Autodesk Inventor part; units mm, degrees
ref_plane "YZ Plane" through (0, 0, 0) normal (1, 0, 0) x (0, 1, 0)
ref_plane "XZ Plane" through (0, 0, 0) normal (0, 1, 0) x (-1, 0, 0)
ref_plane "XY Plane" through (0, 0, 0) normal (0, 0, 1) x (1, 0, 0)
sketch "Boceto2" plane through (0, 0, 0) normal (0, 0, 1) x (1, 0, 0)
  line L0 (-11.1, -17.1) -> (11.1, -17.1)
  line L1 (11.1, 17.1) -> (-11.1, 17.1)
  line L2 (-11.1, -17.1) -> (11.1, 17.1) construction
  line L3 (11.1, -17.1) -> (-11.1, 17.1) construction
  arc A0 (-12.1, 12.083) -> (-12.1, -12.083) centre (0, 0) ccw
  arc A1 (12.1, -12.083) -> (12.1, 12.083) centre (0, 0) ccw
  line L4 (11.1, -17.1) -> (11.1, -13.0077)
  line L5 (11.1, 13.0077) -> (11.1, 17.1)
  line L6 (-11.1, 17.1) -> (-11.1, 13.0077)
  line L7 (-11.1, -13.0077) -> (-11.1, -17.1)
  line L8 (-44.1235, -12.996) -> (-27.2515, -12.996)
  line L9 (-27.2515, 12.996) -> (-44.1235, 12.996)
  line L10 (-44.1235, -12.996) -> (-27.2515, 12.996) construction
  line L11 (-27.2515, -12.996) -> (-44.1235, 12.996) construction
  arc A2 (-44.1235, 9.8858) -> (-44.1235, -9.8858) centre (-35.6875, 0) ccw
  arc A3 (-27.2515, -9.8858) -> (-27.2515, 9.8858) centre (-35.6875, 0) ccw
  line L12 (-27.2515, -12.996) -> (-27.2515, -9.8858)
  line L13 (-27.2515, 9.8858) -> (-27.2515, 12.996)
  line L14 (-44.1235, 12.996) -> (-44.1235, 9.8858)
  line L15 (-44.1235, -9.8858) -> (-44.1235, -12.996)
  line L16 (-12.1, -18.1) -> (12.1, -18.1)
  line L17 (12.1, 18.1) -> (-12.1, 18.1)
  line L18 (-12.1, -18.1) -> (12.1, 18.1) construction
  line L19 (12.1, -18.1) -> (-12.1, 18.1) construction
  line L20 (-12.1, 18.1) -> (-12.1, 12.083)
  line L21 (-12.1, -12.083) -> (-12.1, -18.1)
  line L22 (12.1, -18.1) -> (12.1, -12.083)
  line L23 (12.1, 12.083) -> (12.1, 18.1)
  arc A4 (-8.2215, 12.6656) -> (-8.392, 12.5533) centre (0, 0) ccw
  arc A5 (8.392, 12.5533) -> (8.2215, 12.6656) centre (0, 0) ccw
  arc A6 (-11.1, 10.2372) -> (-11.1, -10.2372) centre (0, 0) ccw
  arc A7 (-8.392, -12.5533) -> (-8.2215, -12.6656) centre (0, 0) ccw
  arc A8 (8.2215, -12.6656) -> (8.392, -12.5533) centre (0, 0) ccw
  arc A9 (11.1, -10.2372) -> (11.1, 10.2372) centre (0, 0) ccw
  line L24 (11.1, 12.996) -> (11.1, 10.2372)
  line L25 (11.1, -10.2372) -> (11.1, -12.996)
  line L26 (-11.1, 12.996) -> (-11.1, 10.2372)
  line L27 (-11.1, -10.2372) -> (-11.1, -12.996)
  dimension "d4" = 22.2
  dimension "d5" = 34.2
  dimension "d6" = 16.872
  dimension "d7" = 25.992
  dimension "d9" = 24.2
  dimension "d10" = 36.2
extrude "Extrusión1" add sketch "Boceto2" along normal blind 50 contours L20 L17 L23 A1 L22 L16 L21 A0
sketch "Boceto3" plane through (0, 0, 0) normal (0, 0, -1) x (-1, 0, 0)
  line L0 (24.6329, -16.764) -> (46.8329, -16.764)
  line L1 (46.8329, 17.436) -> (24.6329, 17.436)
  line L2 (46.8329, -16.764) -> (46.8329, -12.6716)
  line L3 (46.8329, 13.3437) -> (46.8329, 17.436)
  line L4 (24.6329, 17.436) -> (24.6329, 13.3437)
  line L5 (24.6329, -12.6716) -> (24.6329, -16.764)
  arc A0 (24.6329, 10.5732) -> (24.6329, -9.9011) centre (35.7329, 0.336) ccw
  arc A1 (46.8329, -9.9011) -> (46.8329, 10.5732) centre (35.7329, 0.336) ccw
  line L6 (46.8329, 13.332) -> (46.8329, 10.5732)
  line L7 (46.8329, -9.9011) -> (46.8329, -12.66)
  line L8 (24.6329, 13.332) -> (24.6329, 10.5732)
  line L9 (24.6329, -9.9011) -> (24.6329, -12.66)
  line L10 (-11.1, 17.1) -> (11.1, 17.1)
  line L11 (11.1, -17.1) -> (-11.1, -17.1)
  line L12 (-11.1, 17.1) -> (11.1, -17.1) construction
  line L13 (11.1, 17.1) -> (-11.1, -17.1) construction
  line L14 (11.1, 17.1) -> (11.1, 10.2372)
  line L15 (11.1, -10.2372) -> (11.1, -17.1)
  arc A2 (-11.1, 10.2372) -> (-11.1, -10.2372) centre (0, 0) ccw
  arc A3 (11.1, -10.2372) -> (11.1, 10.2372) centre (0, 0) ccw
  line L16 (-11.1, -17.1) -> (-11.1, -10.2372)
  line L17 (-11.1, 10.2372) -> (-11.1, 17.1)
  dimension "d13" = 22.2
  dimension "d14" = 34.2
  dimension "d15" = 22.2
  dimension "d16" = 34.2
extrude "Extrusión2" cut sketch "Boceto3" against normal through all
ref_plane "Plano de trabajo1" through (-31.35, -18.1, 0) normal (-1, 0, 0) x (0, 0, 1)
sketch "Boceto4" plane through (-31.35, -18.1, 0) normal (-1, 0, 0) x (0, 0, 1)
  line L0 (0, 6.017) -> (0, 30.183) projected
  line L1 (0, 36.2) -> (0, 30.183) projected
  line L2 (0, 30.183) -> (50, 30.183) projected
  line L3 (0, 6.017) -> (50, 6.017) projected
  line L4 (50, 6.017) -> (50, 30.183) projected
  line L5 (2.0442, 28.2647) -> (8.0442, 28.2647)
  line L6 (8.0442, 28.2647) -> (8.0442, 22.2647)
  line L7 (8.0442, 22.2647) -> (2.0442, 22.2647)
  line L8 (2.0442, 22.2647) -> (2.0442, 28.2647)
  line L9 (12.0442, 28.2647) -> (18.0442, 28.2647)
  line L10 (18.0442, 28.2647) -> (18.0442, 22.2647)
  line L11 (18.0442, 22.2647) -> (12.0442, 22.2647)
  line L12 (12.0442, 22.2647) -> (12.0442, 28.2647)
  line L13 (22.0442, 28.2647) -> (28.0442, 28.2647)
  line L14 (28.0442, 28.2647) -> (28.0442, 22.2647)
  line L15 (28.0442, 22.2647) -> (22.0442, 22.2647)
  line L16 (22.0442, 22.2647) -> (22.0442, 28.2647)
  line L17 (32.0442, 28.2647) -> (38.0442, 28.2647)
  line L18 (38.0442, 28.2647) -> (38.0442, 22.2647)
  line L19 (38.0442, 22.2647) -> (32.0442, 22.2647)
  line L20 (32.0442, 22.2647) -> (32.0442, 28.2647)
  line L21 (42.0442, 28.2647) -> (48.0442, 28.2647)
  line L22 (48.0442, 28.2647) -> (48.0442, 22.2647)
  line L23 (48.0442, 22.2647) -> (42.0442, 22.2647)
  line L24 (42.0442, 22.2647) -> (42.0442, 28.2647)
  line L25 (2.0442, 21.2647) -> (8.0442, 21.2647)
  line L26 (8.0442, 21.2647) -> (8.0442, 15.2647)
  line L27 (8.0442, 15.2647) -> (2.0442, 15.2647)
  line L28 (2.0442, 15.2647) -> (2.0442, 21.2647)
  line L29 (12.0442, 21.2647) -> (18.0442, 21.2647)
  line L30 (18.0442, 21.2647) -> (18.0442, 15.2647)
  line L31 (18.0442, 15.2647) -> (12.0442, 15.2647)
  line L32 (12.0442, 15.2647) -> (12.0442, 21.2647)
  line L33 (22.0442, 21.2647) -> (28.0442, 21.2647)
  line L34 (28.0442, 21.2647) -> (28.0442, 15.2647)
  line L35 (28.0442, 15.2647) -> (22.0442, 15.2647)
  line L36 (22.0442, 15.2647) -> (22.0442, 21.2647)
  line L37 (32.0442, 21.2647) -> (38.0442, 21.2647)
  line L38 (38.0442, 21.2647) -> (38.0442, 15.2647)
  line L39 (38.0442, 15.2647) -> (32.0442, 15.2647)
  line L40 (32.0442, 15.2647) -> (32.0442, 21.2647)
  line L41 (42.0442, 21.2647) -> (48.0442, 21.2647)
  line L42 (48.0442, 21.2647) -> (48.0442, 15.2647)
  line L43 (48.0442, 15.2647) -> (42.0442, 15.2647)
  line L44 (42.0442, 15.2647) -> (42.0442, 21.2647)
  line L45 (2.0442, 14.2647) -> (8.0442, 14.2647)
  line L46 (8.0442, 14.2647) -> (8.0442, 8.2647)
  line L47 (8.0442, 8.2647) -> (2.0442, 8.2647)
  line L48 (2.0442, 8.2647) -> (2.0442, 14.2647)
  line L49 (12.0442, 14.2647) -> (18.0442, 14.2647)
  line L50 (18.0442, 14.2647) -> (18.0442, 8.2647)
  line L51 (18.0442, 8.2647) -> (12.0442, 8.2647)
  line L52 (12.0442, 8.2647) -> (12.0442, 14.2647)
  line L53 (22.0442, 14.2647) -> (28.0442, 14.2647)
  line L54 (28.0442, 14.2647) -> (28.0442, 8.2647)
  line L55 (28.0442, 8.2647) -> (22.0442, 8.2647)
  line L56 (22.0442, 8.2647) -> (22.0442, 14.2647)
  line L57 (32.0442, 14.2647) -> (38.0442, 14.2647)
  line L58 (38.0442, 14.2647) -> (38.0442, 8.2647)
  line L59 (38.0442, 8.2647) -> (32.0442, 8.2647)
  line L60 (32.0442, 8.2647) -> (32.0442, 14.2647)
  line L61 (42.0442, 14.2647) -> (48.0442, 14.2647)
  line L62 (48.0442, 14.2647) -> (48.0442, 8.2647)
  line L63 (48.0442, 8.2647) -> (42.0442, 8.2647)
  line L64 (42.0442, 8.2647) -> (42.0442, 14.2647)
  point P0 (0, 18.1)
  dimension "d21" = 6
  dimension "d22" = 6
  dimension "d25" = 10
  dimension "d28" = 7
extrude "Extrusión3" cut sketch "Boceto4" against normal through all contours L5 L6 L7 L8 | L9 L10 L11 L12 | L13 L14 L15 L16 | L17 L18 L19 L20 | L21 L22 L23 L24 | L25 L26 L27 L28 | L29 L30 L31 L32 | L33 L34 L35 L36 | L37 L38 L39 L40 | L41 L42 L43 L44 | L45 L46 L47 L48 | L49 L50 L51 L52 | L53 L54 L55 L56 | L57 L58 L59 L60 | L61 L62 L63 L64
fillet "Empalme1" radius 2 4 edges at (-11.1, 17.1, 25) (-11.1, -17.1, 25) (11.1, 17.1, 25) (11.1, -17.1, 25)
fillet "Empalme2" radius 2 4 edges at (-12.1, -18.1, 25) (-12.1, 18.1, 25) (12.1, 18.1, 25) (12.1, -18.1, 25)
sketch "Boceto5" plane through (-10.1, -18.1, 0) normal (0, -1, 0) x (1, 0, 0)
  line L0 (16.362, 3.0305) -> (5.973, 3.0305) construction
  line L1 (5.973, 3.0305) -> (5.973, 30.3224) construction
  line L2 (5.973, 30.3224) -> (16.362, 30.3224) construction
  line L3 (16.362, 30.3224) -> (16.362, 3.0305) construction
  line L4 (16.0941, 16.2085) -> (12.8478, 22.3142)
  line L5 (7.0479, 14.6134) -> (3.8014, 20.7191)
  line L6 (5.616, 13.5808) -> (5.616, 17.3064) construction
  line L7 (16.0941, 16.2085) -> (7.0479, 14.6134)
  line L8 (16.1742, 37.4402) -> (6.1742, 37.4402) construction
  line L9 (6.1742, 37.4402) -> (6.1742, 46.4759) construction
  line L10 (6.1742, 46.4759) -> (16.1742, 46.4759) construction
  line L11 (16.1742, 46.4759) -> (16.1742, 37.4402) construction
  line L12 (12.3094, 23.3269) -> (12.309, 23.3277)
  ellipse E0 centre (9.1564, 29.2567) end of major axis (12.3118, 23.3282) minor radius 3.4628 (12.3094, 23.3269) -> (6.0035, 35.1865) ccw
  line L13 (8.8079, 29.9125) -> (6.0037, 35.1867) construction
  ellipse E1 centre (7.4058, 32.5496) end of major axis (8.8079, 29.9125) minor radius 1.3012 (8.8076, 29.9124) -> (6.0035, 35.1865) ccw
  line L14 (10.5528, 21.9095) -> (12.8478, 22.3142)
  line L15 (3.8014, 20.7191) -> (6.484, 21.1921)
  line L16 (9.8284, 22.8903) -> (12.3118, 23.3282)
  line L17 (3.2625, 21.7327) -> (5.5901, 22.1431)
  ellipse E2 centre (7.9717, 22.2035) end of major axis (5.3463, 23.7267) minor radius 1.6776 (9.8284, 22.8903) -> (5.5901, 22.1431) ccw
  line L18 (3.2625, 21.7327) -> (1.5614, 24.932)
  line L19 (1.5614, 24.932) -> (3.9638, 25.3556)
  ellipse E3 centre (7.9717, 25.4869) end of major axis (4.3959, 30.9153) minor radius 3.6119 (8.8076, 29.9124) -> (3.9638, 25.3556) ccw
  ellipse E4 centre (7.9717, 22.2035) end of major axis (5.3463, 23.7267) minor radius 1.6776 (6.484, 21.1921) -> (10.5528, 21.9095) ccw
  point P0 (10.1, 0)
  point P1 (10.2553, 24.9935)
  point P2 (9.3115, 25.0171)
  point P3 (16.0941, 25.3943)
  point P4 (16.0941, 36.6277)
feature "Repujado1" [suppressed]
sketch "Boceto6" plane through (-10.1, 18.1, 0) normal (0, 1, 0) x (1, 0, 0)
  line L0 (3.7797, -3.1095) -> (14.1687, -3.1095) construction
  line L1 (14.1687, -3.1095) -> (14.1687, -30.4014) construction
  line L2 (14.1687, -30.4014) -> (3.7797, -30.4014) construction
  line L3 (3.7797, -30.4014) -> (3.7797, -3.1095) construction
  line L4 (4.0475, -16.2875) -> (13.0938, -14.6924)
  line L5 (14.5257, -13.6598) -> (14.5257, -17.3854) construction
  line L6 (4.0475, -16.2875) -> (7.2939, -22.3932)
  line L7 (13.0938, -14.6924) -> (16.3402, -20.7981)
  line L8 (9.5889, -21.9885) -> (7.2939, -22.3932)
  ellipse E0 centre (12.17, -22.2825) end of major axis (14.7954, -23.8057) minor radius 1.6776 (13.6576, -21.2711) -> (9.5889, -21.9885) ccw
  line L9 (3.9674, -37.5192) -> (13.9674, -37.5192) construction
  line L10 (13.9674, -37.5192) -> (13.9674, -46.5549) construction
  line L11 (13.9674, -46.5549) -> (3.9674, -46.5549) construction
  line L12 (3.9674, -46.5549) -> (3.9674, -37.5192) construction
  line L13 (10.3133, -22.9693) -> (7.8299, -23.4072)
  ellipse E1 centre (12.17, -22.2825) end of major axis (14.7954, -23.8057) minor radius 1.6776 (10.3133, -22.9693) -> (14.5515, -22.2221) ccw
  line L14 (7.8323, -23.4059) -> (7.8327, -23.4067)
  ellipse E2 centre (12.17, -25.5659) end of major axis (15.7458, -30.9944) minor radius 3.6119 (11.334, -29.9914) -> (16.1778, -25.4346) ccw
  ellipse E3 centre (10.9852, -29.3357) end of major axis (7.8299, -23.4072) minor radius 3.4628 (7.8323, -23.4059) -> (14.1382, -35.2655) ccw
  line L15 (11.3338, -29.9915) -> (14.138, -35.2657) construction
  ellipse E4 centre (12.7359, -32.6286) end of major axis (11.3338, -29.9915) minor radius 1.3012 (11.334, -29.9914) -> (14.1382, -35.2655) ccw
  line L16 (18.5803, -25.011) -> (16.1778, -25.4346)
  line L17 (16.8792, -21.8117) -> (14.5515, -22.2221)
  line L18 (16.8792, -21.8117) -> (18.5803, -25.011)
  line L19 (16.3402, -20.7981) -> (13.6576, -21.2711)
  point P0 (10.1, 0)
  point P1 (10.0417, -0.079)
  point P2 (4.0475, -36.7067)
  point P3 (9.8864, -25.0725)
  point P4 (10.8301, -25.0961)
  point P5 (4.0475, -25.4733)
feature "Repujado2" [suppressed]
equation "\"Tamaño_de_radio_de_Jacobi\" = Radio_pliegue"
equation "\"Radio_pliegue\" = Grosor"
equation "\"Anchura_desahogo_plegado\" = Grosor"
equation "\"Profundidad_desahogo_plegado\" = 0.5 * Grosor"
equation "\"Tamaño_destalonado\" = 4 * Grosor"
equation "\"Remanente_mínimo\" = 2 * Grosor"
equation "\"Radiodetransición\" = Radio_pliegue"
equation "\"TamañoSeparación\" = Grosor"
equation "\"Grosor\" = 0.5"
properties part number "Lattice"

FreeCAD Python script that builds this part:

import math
import FreeCAD as App
import Part
import Sketcher
from FreeCAD import Vector
Q = App.Units.Quantity


def edges_at(feature, points):
    """Names of the edges that pass closest to the given points."""
    edges = feature.Shape.Edges
    near = lambda p: min(range(len(edges)), key=lambda i: edges[i].distToShape(Part.Vertex(*p))[0])
    return sorted({f"Edge{near(p) + 1}" for p in points})


def add_polygon(sketch, points):
    """Adds a closed chain of lines whose ends are joined by coincident constraints."""
    first, n = sketch.GeometryCount, len(points)
    for a, b in zip(points, points[1:] + points[:1]):
        sketch.addGeometry(Part.LineSegment(App.Vector(*a, 0), App.Vector(*b, 0)), False)
    for i in range(n):
        sketch.addConstraint(Sketcher.Constraint("Coincident", first + i, 2, first + (i + 1) % n, 1))

doc = App.newDocument("Part")
body = doc.addObject("PartDesign::Body", "Body")

# Sketch on XY plane
sketch1 = doc.addObject("Sketcher::SketchObject", "Sketch")
body.addObject(sketch1)
sketch1.AttachmentSupport = (doc.XY_Plane, [""])
sketch1.MapMode = "FlatFace"
sketch1.addGeometry([
    Part.LineSegment(Vector(-12, 18, 0), Vector(-12, 12, 0)),  # 0
    Part.ArcOfCircle(Part.Circle(Vector(0, 0, 0), Vector(0, 0, 1), 17), math.radians(135), math.radians(225)),  # 1
    Part.LineSegment(Vector(-12, -12, 0), Vector(-12, -18, 0)),  # 2
    Part.LineSegment(Vector(-12, -18, 0), Vector(12, -18, 0)),  # 3
    Part.LineSegment(Vector(12, -18, 0), Vector(12, -12, 0)),  # 4
    Part.ArcOfCircle(Part.Circle(Vector(0, 0, 0), Vector(0, 0, 1), 17), math.radians(-45), math.radians(45)),  # 5
    Part.LineSegment(Vector(12, 12, 0), Vector(12, 18, 0)),  # 6
    Part.LineSegment(Vector(12, 18, 0), Vector(-12, 18, 0)),  # 7
], False)
sketch1.addConstraint([
    Sketcher.Constraint("Coincident", 0, 2, 1, 1),
    Sketcher.Constraint("Coincident", 1, 2, 2, 1),
    Sketcher.Constraint("Coincident", 2, 2, 3, 1),
    Sketcher.Constraint("Coincident", 3, 2, 4, 1),
    Sketcher.Constraint("Coincident", 4, 2, 5, 1),
    Sketcher.Constraint("Coincident", 5, 2, 6, 1),
    Sketcher.Constraint("Coincident", 6, 2, 7, 1),
    Sketcher.Constraint("Coincident", 7, 2, 0, 1),
    Sketcher.Constraint("Vertical", 0),
    Sketcher.Constraint("Vertical", 2),
    Sketcher.Constraint("Horizontal", 3),
    Sketcher.Constraint("Vertical", 4),
    Sketcher.Constraint("Vertical", 6),
    Sketcher.Constraint("Horizontal", 7),
    Sketcher.Constraint("Coincident", 1, 3, -1, 1),
    Sketcher.Constraint("Coincident", 5, 3, -1, 1),
    Sketcher.Constraint("Equal", 1, 5),
    Sketcher.Constraint("Symmetric", 2, 2, 6, 2, -1, 1),
    Sketcher.Constraint("Horizontal", 1, 2, 4, 2),
    Sketcher.Constraint("Horizontal", 0, 2, 5, 2),
    Sketcher.Constraint("Radius", 1, Q("17.1 mm")),
    Sketcher.Constraint("DistanceX", 3, 1, 3, 2, Q("24.2 mm")),
    Sketcher.Constraint("DistanceY", 2, 2, -1, 1, Q("18.1 mm")),
])
pad1 = doc.addObject("PartDesign::Pad", "Pad")
body.addObject(pad1)
pad1.Profile = sketch1
pad1.Length = 50

# Sketch on XY plane
sketch2 = doc.addObject("Sketcher::SketchObject", "Sketch001")
body.addObject(sketch2)
sketch2.AttachmentSupport = (doc.XY_Plane, [""])
sketch2.MapMode = "FlatFace"
sketch2.addGeometry([
    Part.LineSegment(Vector(-11, 17, 0), Vector(11, 17, 0)),  # 0
    Part.LineSegment(Vector(11, 17, 0), Vector(11, 10, 0)),  # 1
    Part.ArcOfCircle(Part.Circle(Vector(0, 0, 0), Vector(0, 0, 1), 15), math.radians(-43), math.radians(43)),  # 2
    Part.LineSegment(Vector(11, -10, 0), Vector(11, -17, 0)),  # 3
    Part.LineSegment(Vector(11, -17, 0), Vector(-11, -17, 0)),  # 4
    Part.LineSegment(Vector(-11, -17, 0), Vector(-11, -10, 0)),  # 5
    Part.ArcOfCircle(Part.Circle(Vector(0, 0, 0), Vector(0, 0, 1), 15), math.radians(137), math.radians(223)),  # 6
    Part.LineSegment(Vector(-11, 10, 0), Vector(-11, 17, 0)),  # 7
], False)
sketch2.addConstraint([
    Sketcher.Constraint("Coincident", 0, 2, 1, 1),
    Sketcher.Constraint("Coincident", 1, 2, 2, 2),
    Sketcher.Constraint("Coincident", 2, 1, 3, 1),
    Sketcher.Constraint("Coincident", 3, 2, 4, 1),
    Sketcher.Constraint("Coincident", 4, 2, 5, 1),
    Sketcher.Constraint("Coincident", 5, 2, 6, 2),
    Sketcher.Constraint("Coincident", 6, 1, 7, 1),
    Sketcher.Constraint("Coincident", 7, 2, 0, 1),
    Sketcher.Constraint("Horizontal", 0),
    Sketcher.Constraint("Vertical", 1),
    Sketcher.Constraint("Vertical", 3),
    Sketcher.Constraint("Horizontal", 4),
    Sketcher.Constraint("Vertical", 5),
    Sketcher.Constraint("Vertical", 7),
    Sketcher.Constraint("Coincident", 2, 3, -1, 1),
    Sketcher.Constraint("Coincident", 6, 3, -1, 1),
    Sketcher.Constraint("Equal", 2, 6),
    Sketcher.Constraint("Symmetric", 0, 2, 4, 2, -1, 1),
    Sketcher.Constraint("Horizontal", 2, 1, 5, 2),
    Sketcher.Constraint("Horizontal", 1, 2, 6, 1),
    Sketcher.Constraint("DistanceX", 0, 1, 0, 2, Q("22.2 mm")),
    Sketcher.Constraint("Radius", 2, Q("15.1 mm")),
    Sketcher.Constraint("DistanceY", 3, 2, 0, 2, Q("34.2 mm")),
])
pocket1 = doc.addObject("PartDesign::Pocket", "Pocket")
body.addObject(pocket1)
pocket1.Profile = sketch2
pocket1.Type = "ThroughAll"
pocket1.Reversed = True

# Sketch on YZ plane
sketch3 = doc.addObject("Sketcher::SketchObject", "Sketch002")
body.addObject(sketch3)
sketch3.AttachmentSupport = (doc.YZ_Plane, [""])
sketch3.MapMode = "FlatFace"
sketch3.AttachmentOffset = App.Placement(Vector(0, 0, -31.35), App.Rotation())
add_polygon(sketch3, [(10, 8), (10, 2), (4, 2), (4, 8)])  # lines 0-3
add_polygon(sketch3, [(10, 18), (10, 12), (4, 12), (4, 18)])  # lines 4-7
add_polygon(sketch3, [(10, 28), (10, 22), (4, 22), (4, 28)])  # lines 8-11
add_polygon(sketch3, [(10, 38), (10, 32), (4, 32), (4, 38)])  # lines 12-15
add_polygon(sketch3, [(10, 48), (10, 42), (4, 42), (4, 48)])  # lines 16-19
add_polygon(sketch3, [(3, 8), (3, 2), (-3, 2), (-3, 8)])  # lines 20-23
add_polygon(sketch3, [(3, 18), (3, 12), (-3, 12), (-3, 18)])  # lines 24-27
add_polygon(sketch3, [(3, 28), (3, 22), (-3, 22), (-3, 28)])  # lines 28-31
add_polygon(sketch3, [(3, 38), (3, 32), (-3, 32), (-3, 38)])  # lines 32-35
add_polygon(sketch3, [(3, 48), (3, 42), (-3, 42), (-3, 48)])  # lines 36-39
add_polygon(sketch3, [(-4, 8), (-4, 2), (-10, 2), (-10, 8)])  # lines 40-43
add_polygon(sketch3, [(-4, 18), (-4, 12), (-10, 12), (-10, 18)])  # lines 44-47
add_polygon(sketch3, [(-4, 28), (-4, 22), (-10, 22), (-10, 28)])  # lines 48-51
add_polygon(sketch3, [(-4, 38), (-4, 32), (-10, 32), (-10, 38)])  # lines 52-55
add_polygon(sketch3, [(-4, 48), (-4, 42), (-10, 42), (-10, 48)])  # lines 56-59
sketch3.addConstraint([
    Sketcher.Constraint("Vertical", 0),
    Sketcher.Constraint("Horizontal", 1),
    Sketcher.Constraint("Vertical", 2),
    Sketcher.Constraint("Horizontal", 3),
    Sketcher.Constraint("Vertical", 4),
    Sketcher.Constraint("Horizontal", 5),
    Sketcher.Constraint("Vertical", 6),
    Sketcher.Constraint("Horizontal", 7),
    Sketcher.Constraint("Vertical", 8),
    Sketcher.Constraint("Horizontal", 9),
    Sketcher.Constraint("Vertical", 10),
    Sketcher.Constraint("Horizontal", 11),
    Sketcher.Constraint("Vertical", 12),
    Sketcher.Constraint("Horizontal", 13),
    Sketcher.Constraint("Vertical", 14),
    Sketcher.Constraint("Horizontal", 15),
    Sketcher.Constraint("Vertical", 16),
    Sketcher.Constraint("Horizontal", 17),
    Sketcher.Constraint("Vertical", 18),
    Sketcher.Constraint("Horizontal", 19),
    Sketcher.Constraint("Vertical", 20),
    Sketcher.Constraint("Horizontal", 21),
    Sketcher.Constraint("Vertical", 22),
    Sketcher.Constraint("Horizontal", 23),
    Sketcher.Constraint("Vertical", 24),
    Sketcher.Constraint("Horizontal", 25),
    Sketcher.Constraint("Vertical", 26),
    Sketcher.Constraint("Horizontal", 27),
    Sketcher.Constraint("Vertical", 28),
    Sketcher.Constraint("Horizontal", 29),
    Sketcher.Constraint("Vertical", 30),
    Sketcher.Constraint("Horizontal", 31),
    Sketcher.Constraint("Vertical", 32),
    Sketcher.Constraint("Horizontal", 33),
    Sketcher.Constraint("Vertical", 34),
    Sketcher.Constraint("Horizontal", 35),
    Sketcher.Constraint("Vertical", 36),
    Sketcher.Constraint("Horizontal", 37),
    Sketcher.Constraint("Vertical", 38),
    Sketcher.Constraint("Horizontal", 39),
    Sketcher.Constraint("Vertical", 40),
    Sketcher.Constraint("Horizontal", 41),
    Sketcher.Constraint("Vertical", 42),
    Sketcher.Constraint("Horizontal", 43),
    Sketcher.Constraint("Vertical", 44),
    Sketcher.Constraint("Horizontal", 45),
    Sketcher.Constraint("Vertical", 46),
    Sketcher.Constraint("Horizontal", 47),
    Sketcher.Constraint("Vertical", 48),
    Sketcher.Constraint("Horizontal", 49),
    Sketcher.Constraint("Vertical", 50),
    Sketcher.Constraint("Horizontal", 51),
    Sketcher.Constraint("Vertical", 52),
    Sketcher.Constraint("Horizontal", 53),
    Sketcher.Constraint("Vertical", 54),
    Sketcher.Constraint("Horizontal", 55),
    Sketcher.Constraint("Vertical", 56),
    Sketcher.Constraint("Horizontal", 57),
    Sketcher.Constraint("Vertical", 58),
    Sketcher.Constraint("Horizontal", 59),
    Sketcher.Constraint("Horizontal", 1, 2, 20, 2),
    Sketcher.Constraint("Horizontal", 3, 2, 22, 2),
    Sketcher.Constraint("Horizontal", 5, 2, 24, 2),
    Sketcher.Constraint("Horizontal", 7, 2, 26, 2),
    Sketcher.Constraint("Horizontal", 9, 2, 28, 2),
    Sketcher.Constraint("Horizontal", 11, 2, 30, 2),
    Sketcher.Constraint("Horizontal", 13, 2, 32, 2),
    Sketcher.Constraint("Horizontal", 15, 2, 34, 2),
    Sketcher.Constraint("Horizontal", 17, 2, 36, 2),
    Sketcher.Constraint("Horizontal", 19, 2, 38, 2),
    Sketcher.Constraint("Horizontal", 21, 2, 40, 2),
    Sketcher.Constraint("Horizontal", 23, 2, 42, 2),
    Sketcher.Constraint("Horizontal", 25, 2, 44, 2),
    Sketcher.Constraint("Horizontal", 27, 2, 46, 2),
    Sketcher.Constraint("Horizontal", 29, 2, 48, 2),
    Sketcher.Constraint("Horizontal", 31, 2, 50, 2),
    Sketcher.Constraint("Horizontal", 33, 2, 52, 2),
    Sketcher.Constraint("Horizontal", 35, 2, 54, 2),
    Sketcher.Constraint("Horizontal", 37, 2, 56, 2),
    Sketcher.Constraint("Horizontal", 39, 2, 58, 2),
    Sketcher.Constraint("Vertical", 3, 2, 4, 2),
    Sketcher.Constraint("Vertical", 2, 2, 5, 2),
    Sketcher.Constraint("Vertical", 7, 2, 8, 2),
    Sketcher.Constraint("Vertical", 6, 2, 9, 2),
    Sketcher.Constraint("Vertical", 11, 2, 12, 2),
    Sketcher.Constraint("Vertical", 10, 2, 13, 2),
    Sketcher.Constraint("Vertical", 15, 2, 16, 2),
    Sketcher.Constraint("Vertical", 14, 2, 17, 2),
    Sketcher.Constraint("Vertical", 23, 2, 24, 2),
    Sketcher.Constraint("Vertical", 22, 2, 25, 2),
    Sketcher.Constraint("Vertical", 27, 2, 28, 2),
    Sketcher.Constraint("Vertical", 26, 2, 29, 2),
    Sketcher.Constraint("Vertical", 31, 2, 32, 2),
    Sketcher.Constraint("Vertical", 30, 2, 33, 2),
    Sketcher.Constraint("Vertical", 35, 2, 36, 2),
    Sketcher.Constraint("Vertical", 34, 2, 37, 2),
    Sketcher.Constraint("Vertical", 43, 2, 44, 2),
    Sketcher.Constraint("Vertical", 42, 2, 45, 2),
    Sketcher.Constraint("Vertical", 47, 2, 48, 2),
    Sketcher.Constraint("Vertical", 46, 2, 49, 2),
    Sketcher.Constraint("Vertical", 51, 2, 52, 2),
    Sketcher.Constraint("Vertical", 50, 2, 53, 2),
    Sketcher.Constraint("Vertical", 55, 2, 56, 2),
    Sketcher.Constraint("Vertical", 54, 2, 57, 2),
    Sketcher.Constraint("Equal", 19, 21),
    Sketcher.Constraint("Equal", 39, 41),
    Sketcher.Constraint("Equal", 59, 0),
    Sketcher.Constraint("Equal", 2, 4),
    Sketcher.Constraint("Equal", 6, 8),
    Sketcher.Constraint("Equal", 10, 12),
    Sketcher.Constraint("Equal", 14, 16),
    Sketcher.Constraint("DistanceX", 1, 2, 1, 1, Q("6 mm")),
    Sketcher.Constraint("DistanceY", 0, 2, 4, 2, Q("10 mm")),
    Sketcher.Constraint("DistanceY", 4, 2, 8, 2, Q("10 mm")),
    Sketcher.Constraint("DistanceY", 8, 2, 12, 2, Q("10 mm")),
    Sketcher.Constraint("DistanceY", 12, 2, 16, 2, Q("10 mm")),
    Sketcher.Constraint("DistanceX", 20, 2, 0, 2, Q("7 mm")),
    Sketcher.Constraint("DistanceX", 40, 2, 20, 2, Q("7 mm")),
    Sketcher.Constraint("DistanceX", -1, 1, 0, 2, Q("10.1647 mm")),
    Sketcher.Constraint("DistanceY", -1, 1, 0, 2, Q("2.0442 mm")),
])
pocket2 = doc.addObject("PartDesign::Pocket", "Pocket001")
body.addObject(pocket2)
pocket2.Profile = sketch3
pocket2.Type = "ThroughAll"
pocket2.Reversed = True
doc.recompute()

fillet = doc.addObject("PartDesign::Fillet", "Fillet")
body.addObject(fillet)
fillet.Base = (pocket2, edges_at(pocket2, [
    (-11.1, 17.1, 25),
    (-11.1, -17.1, 25),
    (11.1, 17.1, 25),
    (11.1, -17.1, 25),
]))
fillet.Radius = 2
doc.recompute()

fillet2 = doc.addObject("PartDesign::Fillet", "Fillet001")
body.addObject(fillet2)
fillet2.Base = (fillet, edges_at(fillet, [
    (-12.1, -18.1, 25),
    (-12.1, 18.1, 25),
    (12.1, 18.1, 25),
    (12.1, -18.1, 25),
]))
fillet2.Radius = 2

doc.recompute()
